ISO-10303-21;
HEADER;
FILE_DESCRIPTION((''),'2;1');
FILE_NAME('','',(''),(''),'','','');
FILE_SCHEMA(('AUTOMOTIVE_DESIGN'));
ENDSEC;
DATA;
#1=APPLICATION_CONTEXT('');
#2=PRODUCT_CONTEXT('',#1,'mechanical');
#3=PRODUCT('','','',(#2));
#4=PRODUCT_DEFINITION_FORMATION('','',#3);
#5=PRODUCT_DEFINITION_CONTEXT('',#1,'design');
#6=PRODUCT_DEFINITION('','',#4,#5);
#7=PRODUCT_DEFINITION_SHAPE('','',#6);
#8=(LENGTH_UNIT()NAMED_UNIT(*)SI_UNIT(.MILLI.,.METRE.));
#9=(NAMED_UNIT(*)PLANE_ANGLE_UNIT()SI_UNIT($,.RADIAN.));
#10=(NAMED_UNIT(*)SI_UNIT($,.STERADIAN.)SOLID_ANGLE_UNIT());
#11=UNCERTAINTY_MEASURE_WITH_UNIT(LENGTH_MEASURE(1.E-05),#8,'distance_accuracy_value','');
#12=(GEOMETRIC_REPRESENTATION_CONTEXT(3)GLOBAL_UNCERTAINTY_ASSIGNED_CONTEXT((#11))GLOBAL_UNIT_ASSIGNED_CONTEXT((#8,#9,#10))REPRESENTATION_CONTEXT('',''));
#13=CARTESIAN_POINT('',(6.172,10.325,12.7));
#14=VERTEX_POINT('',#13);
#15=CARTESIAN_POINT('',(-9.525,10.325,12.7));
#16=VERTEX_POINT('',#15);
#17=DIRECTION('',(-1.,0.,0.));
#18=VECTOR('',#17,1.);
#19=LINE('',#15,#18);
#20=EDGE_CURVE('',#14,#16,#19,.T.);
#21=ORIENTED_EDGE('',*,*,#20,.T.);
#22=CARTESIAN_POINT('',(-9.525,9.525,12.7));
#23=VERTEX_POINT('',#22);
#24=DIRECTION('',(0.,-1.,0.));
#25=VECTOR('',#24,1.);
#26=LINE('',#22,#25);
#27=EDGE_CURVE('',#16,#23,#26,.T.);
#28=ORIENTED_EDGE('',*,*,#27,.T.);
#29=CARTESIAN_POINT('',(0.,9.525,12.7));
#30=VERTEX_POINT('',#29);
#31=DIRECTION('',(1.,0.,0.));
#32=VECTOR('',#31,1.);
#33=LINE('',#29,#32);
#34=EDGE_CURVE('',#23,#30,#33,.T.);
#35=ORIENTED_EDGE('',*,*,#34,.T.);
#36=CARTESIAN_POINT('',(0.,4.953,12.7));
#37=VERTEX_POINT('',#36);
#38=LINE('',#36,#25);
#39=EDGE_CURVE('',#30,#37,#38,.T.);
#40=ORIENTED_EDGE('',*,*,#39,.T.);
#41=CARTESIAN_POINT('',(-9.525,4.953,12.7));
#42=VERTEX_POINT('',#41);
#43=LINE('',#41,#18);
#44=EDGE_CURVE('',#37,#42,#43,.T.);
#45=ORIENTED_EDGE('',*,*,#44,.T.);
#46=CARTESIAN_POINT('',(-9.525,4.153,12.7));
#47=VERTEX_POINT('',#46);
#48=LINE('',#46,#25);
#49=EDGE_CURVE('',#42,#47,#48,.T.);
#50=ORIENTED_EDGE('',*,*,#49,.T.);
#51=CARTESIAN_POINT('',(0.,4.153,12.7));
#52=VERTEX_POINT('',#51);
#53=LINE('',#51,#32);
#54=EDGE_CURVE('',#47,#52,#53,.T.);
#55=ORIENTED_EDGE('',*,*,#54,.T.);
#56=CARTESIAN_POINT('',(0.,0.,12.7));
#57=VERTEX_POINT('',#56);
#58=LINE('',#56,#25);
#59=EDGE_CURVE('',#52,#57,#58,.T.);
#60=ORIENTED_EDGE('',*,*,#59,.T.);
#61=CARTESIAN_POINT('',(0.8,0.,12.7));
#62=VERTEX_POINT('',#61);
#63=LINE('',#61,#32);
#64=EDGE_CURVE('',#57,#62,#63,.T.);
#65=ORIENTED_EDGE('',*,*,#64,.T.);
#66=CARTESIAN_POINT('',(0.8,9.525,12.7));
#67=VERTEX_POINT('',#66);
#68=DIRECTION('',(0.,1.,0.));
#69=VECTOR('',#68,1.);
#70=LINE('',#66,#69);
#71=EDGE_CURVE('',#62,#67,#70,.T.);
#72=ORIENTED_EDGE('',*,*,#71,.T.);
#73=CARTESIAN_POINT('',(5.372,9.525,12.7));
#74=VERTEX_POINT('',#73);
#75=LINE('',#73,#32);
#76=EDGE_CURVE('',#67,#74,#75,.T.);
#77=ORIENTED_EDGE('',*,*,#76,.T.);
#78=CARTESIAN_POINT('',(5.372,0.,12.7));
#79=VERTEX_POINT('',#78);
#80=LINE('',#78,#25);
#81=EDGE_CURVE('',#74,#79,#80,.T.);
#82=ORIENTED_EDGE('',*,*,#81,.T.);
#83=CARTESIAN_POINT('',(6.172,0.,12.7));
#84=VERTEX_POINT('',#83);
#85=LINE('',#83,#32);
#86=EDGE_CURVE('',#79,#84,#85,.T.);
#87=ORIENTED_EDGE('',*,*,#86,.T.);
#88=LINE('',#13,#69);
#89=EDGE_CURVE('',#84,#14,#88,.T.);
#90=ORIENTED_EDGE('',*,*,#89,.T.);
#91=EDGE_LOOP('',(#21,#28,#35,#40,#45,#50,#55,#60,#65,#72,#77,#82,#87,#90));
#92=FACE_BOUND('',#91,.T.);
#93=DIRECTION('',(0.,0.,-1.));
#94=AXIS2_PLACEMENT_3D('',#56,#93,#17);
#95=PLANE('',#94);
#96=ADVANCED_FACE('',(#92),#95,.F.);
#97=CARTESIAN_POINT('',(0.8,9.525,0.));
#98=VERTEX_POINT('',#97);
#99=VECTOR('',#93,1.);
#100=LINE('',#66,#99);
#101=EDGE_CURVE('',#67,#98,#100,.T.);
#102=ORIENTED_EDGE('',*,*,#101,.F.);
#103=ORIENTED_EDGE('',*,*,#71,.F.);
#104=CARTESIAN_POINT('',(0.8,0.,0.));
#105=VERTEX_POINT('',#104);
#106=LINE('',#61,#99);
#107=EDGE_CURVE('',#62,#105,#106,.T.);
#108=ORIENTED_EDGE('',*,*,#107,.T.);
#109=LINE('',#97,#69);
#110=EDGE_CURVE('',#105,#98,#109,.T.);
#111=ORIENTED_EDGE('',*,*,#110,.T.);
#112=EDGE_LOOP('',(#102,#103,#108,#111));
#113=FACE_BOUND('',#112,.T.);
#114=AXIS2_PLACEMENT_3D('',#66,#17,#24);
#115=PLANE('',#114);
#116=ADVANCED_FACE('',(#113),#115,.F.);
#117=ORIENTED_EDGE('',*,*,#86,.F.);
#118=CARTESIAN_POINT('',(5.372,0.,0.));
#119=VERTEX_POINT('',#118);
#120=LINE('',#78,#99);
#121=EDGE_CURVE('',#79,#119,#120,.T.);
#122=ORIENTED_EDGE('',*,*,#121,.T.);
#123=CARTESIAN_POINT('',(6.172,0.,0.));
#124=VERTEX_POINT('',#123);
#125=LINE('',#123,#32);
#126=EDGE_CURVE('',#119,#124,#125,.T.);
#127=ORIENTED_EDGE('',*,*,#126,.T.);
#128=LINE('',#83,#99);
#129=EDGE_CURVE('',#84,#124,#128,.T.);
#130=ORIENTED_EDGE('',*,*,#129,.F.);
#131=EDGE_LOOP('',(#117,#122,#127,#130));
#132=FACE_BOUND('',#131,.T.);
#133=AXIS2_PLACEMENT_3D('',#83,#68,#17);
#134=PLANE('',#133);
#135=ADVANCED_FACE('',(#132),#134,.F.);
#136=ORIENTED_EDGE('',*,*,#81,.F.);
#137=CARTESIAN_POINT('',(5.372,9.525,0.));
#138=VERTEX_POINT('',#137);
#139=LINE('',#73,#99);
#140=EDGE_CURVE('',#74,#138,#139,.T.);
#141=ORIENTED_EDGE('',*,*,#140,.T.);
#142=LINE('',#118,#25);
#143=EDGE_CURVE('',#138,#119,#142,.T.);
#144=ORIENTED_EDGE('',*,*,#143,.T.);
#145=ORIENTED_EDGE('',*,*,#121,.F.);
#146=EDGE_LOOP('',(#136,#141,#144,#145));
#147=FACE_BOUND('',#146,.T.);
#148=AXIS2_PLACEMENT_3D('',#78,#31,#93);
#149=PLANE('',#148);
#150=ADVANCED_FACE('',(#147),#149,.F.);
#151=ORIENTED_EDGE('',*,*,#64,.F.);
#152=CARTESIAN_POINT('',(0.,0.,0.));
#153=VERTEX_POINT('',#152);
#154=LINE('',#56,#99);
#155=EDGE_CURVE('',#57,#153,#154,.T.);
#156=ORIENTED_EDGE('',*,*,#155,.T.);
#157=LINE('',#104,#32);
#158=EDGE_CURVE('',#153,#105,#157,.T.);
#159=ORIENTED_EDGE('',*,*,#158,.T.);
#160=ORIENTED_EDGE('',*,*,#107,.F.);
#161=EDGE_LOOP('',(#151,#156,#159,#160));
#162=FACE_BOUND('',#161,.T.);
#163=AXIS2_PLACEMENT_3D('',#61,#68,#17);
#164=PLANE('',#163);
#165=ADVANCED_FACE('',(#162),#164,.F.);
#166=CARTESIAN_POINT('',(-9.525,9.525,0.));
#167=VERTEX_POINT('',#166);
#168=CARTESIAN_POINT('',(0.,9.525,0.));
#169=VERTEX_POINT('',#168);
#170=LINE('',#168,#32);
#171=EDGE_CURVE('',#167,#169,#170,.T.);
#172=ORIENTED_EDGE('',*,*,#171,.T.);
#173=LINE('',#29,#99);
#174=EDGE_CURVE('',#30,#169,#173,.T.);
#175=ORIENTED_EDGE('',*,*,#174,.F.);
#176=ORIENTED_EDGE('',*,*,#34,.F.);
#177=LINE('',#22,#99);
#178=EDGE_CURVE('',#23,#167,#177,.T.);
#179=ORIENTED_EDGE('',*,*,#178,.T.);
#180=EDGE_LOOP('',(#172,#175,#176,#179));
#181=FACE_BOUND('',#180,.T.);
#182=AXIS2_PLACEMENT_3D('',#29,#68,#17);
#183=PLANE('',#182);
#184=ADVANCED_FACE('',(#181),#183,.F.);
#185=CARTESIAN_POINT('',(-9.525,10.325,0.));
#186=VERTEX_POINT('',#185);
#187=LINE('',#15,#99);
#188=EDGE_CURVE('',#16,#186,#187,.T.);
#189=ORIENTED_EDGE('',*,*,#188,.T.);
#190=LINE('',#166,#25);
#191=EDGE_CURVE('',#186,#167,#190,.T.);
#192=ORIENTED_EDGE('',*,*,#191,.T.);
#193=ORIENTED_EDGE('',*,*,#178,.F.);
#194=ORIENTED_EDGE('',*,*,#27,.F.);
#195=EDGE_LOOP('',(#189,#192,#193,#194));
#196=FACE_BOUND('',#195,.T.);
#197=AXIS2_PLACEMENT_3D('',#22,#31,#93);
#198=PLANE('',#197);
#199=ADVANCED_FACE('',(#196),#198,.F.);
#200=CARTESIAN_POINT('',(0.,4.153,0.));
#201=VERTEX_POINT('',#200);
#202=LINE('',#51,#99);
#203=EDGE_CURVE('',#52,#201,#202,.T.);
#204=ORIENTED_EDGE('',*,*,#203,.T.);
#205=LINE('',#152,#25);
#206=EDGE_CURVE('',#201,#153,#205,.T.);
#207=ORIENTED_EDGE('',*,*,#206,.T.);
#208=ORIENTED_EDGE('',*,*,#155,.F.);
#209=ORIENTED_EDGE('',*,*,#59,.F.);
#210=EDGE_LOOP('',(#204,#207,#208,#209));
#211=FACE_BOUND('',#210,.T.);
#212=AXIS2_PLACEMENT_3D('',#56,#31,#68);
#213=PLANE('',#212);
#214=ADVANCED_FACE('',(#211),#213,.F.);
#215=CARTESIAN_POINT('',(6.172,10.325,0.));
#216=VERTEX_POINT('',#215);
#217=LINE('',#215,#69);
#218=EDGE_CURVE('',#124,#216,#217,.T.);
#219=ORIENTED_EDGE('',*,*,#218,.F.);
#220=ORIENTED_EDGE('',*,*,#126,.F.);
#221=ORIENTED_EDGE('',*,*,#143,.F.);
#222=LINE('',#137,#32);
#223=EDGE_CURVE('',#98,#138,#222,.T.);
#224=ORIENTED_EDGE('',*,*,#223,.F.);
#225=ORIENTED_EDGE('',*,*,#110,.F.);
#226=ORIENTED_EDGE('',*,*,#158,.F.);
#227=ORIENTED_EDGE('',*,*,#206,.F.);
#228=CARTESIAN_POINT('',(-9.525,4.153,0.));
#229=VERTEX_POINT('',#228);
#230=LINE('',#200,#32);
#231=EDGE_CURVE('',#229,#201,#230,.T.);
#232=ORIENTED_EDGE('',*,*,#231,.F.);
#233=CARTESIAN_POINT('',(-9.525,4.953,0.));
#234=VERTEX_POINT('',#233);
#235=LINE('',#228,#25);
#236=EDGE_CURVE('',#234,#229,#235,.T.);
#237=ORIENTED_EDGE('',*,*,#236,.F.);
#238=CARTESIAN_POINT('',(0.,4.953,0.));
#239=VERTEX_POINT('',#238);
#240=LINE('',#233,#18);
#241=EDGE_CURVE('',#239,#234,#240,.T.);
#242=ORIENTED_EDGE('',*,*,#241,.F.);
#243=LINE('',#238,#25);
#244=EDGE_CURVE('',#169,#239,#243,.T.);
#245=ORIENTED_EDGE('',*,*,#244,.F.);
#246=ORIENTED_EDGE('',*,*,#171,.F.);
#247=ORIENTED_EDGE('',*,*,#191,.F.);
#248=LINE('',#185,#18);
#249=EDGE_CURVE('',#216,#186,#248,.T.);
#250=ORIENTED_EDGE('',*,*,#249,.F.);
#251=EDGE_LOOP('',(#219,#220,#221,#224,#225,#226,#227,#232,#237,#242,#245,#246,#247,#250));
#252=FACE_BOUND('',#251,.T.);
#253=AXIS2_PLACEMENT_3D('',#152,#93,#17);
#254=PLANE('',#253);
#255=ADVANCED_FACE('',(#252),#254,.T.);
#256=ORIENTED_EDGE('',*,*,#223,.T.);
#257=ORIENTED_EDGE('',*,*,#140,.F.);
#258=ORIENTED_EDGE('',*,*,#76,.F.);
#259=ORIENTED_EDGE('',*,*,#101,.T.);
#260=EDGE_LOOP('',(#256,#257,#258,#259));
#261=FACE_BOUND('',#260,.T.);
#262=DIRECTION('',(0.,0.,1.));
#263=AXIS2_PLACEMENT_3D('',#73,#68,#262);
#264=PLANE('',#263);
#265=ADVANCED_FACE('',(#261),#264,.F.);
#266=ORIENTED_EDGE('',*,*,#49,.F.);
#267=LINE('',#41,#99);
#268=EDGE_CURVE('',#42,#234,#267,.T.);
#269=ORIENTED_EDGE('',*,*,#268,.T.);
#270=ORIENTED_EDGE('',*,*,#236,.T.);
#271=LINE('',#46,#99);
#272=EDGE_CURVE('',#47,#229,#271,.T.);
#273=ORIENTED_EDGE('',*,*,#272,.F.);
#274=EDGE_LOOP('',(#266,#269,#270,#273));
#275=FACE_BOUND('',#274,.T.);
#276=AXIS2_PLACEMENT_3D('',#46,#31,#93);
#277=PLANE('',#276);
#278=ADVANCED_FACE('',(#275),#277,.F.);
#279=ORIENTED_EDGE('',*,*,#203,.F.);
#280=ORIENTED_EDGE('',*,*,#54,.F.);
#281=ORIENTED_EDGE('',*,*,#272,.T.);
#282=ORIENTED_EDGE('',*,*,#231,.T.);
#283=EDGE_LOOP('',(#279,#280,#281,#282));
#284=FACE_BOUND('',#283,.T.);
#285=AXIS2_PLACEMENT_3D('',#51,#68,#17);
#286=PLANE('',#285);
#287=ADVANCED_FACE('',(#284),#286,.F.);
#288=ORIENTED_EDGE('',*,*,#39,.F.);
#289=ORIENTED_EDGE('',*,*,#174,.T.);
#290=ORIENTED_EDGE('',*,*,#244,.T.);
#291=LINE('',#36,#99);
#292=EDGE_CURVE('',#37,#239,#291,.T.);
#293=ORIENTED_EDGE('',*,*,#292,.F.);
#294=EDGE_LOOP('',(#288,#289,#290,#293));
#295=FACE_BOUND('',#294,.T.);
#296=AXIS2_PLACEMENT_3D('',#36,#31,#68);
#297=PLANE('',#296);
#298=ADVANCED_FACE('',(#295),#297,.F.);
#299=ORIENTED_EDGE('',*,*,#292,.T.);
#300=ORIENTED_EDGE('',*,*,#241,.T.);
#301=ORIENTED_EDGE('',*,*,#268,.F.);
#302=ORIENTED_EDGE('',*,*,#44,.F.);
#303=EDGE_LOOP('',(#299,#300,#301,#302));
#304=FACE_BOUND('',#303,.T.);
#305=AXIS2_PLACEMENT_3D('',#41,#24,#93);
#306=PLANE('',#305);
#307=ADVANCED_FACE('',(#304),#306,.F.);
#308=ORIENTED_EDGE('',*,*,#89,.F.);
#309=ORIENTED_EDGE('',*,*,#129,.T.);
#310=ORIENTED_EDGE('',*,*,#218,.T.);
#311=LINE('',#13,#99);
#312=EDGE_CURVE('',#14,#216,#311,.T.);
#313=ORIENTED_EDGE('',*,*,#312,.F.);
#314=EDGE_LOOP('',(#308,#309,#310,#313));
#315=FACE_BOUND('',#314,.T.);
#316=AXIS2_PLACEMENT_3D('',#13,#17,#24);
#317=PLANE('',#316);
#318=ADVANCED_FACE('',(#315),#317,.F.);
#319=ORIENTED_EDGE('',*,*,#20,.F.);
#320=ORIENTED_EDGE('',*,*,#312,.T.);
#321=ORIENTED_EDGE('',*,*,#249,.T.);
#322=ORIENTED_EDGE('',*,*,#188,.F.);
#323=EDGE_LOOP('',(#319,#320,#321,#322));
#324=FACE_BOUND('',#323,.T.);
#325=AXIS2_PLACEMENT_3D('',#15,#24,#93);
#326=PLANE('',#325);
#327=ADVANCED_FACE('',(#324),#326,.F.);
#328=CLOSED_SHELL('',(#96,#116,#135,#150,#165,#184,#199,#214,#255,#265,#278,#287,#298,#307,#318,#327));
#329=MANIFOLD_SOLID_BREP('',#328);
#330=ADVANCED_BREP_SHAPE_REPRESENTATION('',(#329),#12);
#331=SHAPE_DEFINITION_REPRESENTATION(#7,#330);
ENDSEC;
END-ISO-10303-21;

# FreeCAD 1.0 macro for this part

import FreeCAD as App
import Part
import Sketcher
Q = App.Units.Quantity


def add_polygon(sketch, points):
    """Adds a closed chain of lines whose ends are joined by coincident constraints."""
    first, n = sketch.GeometryCount, len(points)
    for a, b in zip(points, points[1:] + points[:1]):
        sketch.addGeometry(Part.LineSegment(App.Vector(*a, 0), App.Vector(*b, 0)), False)
    for i in range(n):
        sketch.addConstraint(Sketcher.Constraint("Coincident", first + i, 2, first + (i + 1) % n, 1))

doc = App.newDocument("Part")
body = doc.addObject("PartDesign::Body", "Body")

sketch1 = body.newObject("Sketcher::SketchObject", "Sketch")
sketch1.AttachmentSupport = (doc.getObject("XY_Plane"), [""])
sketch1.MapMode = "FlatFace"
add_polygon(sketch1, [(0, 4.2), (0, 0), (0.8, 0), (0.8, 9.5), (5.4, 9.5), (5.4, 0), (6.2, 0), (6.2, 10.3), (-9.5, 10.3), (-9.5, 9.5), (0, 9.5), (0, 5), (-9.5, 5), (-9.5, 4.2)])
sketch1.addConstraint([
    Sketcher.Constraint("Vertical", 0),
    Sketcher.Constraint("Horizontal", 1),
    Sketcher.Constraint("Vertical", 2),
    Sketcher.Constraint("Horizontal", 3),
    Sketcher.Constraint("Vertical", 4),
    Sketcher.Constraint("Horizontal", 5),
    Sketcher.Constraint("Vertical", 6),
    Sketcher.Constraint("Horizontal", 7),
    Sketcher.Constraint("Vertical", 8),
    Sketcher.Constraint("Horizontal", 9),
    Sketcher.Constraint("Vertical", 10),
    Sketcher.Constraint("Horizontal", 11),
    Sketcher.Constraint("Vertical", 12),
    Sketcher.Constraint("Horizontal", 13),
    Sketcher.Constraint("Coincident", 0, 2, -1, 1),
    Sketcher.Constraint("PointOnObject", 4, 2, -1),
    Sketcher.Constraint("PointOnObject", 9, 2, -2),
    Sketcher.Constraint("Horizontal", 3, 2, 8, 2),
    Sketcher.Constraint("Vertical", 8, 2, 11, 2),
    Sketcher.Constraint("Equal", 1, 5),
    Sketcher.Constraint("Equal", 13, 2),
    Sketcher.Constraint("Equal", 5, 8),
    Sketcher.Constraint("Equal", 3, 10),
    Sketcher.Constraint("Equal", 8, 12),
    Sketcher.Constraint("DistanceX", 3, 1, 3, 2, Q("0.18 in")),
    Sketcher.Constraint("DistanceX", 9, 1, 9, 2, Q("0.375 in")),
    Sketcher.Constraint("DistanceX", 1, 1, 1, 2, 0.8),
])
pad1 = body.newObject("PartDesign::Pad", "Pad")
pad1.Profile = sketch1
pad1.Length = Q("0.5 in")

doc.recompute()
